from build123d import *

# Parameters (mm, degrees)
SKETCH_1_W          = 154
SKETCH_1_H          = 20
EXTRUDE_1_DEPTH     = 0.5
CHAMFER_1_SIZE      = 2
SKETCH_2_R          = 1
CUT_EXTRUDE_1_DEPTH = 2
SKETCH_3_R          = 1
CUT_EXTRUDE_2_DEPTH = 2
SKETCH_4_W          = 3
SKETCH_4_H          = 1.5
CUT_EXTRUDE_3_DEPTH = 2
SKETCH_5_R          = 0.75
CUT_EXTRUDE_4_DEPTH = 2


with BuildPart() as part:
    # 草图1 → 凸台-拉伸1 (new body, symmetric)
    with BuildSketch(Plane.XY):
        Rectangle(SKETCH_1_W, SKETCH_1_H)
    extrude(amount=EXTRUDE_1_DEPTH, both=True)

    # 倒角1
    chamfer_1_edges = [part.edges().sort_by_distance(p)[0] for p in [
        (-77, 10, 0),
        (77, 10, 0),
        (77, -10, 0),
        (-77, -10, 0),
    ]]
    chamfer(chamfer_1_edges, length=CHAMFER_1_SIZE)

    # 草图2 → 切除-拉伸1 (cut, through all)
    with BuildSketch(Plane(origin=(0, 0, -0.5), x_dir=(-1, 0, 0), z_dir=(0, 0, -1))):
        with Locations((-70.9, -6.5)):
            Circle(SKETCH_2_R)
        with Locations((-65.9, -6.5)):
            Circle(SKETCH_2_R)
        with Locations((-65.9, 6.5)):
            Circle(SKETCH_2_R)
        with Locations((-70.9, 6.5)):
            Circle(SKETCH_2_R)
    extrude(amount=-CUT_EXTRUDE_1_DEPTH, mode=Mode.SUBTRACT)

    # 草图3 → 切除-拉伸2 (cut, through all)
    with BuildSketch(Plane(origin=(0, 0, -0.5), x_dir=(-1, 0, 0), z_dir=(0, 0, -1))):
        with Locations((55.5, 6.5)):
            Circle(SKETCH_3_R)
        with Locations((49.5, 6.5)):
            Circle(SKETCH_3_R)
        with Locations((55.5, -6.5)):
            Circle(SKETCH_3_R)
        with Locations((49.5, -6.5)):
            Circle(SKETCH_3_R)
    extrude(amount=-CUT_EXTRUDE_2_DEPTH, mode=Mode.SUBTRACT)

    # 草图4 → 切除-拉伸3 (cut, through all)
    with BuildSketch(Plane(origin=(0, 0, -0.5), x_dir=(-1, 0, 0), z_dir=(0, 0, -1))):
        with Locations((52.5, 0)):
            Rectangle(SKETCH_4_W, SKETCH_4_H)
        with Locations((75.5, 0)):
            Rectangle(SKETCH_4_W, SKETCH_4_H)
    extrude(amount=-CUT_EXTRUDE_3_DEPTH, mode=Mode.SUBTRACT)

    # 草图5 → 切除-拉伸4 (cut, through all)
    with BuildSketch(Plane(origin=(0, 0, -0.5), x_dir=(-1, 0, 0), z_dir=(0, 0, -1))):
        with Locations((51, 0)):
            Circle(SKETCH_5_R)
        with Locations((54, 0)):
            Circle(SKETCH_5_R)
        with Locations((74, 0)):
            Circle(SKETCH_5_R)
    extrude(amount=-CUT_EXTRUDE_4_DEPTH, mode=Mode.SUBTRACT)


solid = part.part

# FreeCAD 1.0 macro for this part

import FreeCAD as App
import Part
import Sketcher


def edges_at(feature, points):
    """Names of the edges that pass closest to the given points."""
    edges = feature.Shape.Edges
    near = lambda p: min(range(len(edges)), key=lambda i: edges[i].distToShape(Part.Vertex(*p))[0])
    return sorted({f"Edge{near(p) + 1}" for p in points})


def add_polygon(sketch, points):
    """Adds a closed chain of lines whose ends are joined by coincident constraints."""
    first, n = sketch.GeometryCount, len(points)
    for a, b in zip(points, points[1:] + points[:1]):
        sketch.addGeometry(Part.LineSegment(App.Vector(*a, 0), App.Vector(*b, 0)), False)
    for i in range(n):
        sketch.addConstraint(Sketcher.Constraint("Coincident", first + i, 2, first + (i + 1) % n, 1))

doc = App.newDocument("Part")
body = doc.addObject("PartDesign::Body", "Body")

# Sketch on XY plane
sketch1 = doc.addObject("Sketcher::SketchObject", "Sketch")
body.addObject(sketch1)
sketch1.AttachmentSupport = (doc.XY_Plane, [""])
sketch1.MapMode = "FlatFace"
add_polygon(sketch1, [(-77, 10), (-77, -10), (77, -10), (77, 10)])  # lines 0-3
sketch1.addConstraint(Sketcher.Constraint("Vertical", 0))
sketch1.addConstraint(Sketcher.Constraint("Horizontal", 1))
sketch1.addConstraint(Sketcher.Constraint("Vertical", 2))
sketch1.addConstraint(Sketcher.Constraint("Horizontal", 3))
sketch1.addConstraint(Sketcher.Constraint("Symmetric", 0, 2, 2, 2, -1, 1))
sketch1.addConstraint(Sketcher.Constraint("DistanceX", 1, 1, 1, 2, 154.0))
sketch1.addConstraint(Sketcher.Constraint("DistanceY", 0, 2, 0, 1, 20.0))
pad1 = doc.addObject("PartDesign::Pad", "Pad")
body.addObject(pad1)
pad1.Profile = sketch1
pad1.Length = 1
pad1.Midplane = True
doc.recompute()

chamfer = doc.addObject("PartDesign::Chamfer", "Chamfer")
body.addObject(chamfer)
chamfer.Base = (pad1, edges_at(pad1, [
    (-77, 10, 0),
    (77, 10, 0),
    (77, -10, 0),
    (-77, -10, 0),
]))
chamfer.Size = 2

# Sketch on XY plane
sketch2 = doc.addObject("Sketcher::SketchObject", "Sketch001")
body.addObject(sketch2)
sketch2.AttachmentSupport = (doc.XY_Plane, [""])
sketch2.MapMode = "FlatFace"
sketch2.AttachmentOffset = App.Placement(App.Vector(0, 0, -0.5), App.Rotation())
sketch2.addGeometry(Part.Circle(App.Vector(70.9, -6.5, 0), App.Vector(0, 0, 1), 1), False)
sketch2.addGeometry(Part.Circle(App.Vector(65.9, -6.5, 0), App.Vector(0, 0, 1), 1), False)
sketch2.addGeometry(Part.Circle(App.Vector(65.9, 6.5, 0), App.Vector(0, 0, 1), 1), False)
sketch2.addGeometry(Part.Circle(App.Vector(70.9, 6.5, 0), App.Vector(0, 0, 1), 1), False)
sketch2.addConstraint(Sketcher.Constraint("Equal", 0, 1))
sketch2.addConstraint(Sketcher.Constraint("Equal", 1, 2))
sketch2.addConstraint(Sketcher.Constraint("Equal", 2, 3))
sketch2.addConstraint(Sketcher.Constraint("Symmetric", 1, 3, 2, 3, -1))
sketch2.addConstraint(Sketcher.Constraint("Symmetric", 0, 3, 3, 3, -1))
sketch2.addConstraint(Sketcher.Constraint("Horizontal", 0, 3, 1, 3))
sketch2.addConstraint(Sketcher.Constraint("Diameter", 0, 2.0))
sketch2.addConstraint(Sketcher.Constraint("DistanceX", 1, 3, 0, 3, 5.0))
sketch2.addConstraint(Sketcher.Constraint("DistanceY", 1, 3, 2, 3, 13.0))
sketch2.addConstraint(Sketcher.Constraint("DistanceX", -1, 1, 0, 3, 70.9))
pocket1 = doc.addObject("PartDesign::Pocket", "Pocket")
body.addObject(pocket1)
pocket1.Profile = sketch2
pocket1.Type = "ThroughAll"
pocket1.Reversed = True

# Sketch on XY plane
sketch3 = doc.addObject("Sketcher::SketchObject", "Sketch002")
body.addObject(sketch3)
sketch3.AttachmentSupport = (doc.XY_Plane, [""])
sketch3.MapMode = "FlatFace"
sketch3.AttachmentOffset = App.Placement(App.Vector(0, 0, -0.5), App.Rotation())
sketch3.addGeometry(Part.Circle(App.Vector(-55.5, 6.5, 0), App.Vector(0, 0, 1), 1), False)
sketch3.addGeometry(Part.Circle(App.Vector(-49.5, 6.5, 0), App.Vector(0, 0, 1), 1), False)
sketch3.addGeometry(Part.Circle(App.Vector(-55.5, -6.5, 0), App.Vector(0, 0, 1), 1), False)
sketch3.addGeometry(Part.Circle(App.Vector(-49.5, -6.5, 0), App.Vector(0, 0, 1), 1), False)
sketch3.addConstraint(Sketcher.Constraint("Equal", 0, 1))
sketch3.addConstraint(Sketcher.Constraint("Equal", 1, 2))
sketch3.addConstraint(Sketcher.Constraint("Equal", 2, 3))
sketch3.addConstraint(Sketcher.Constraint("Symmetric", 0, 3, 2, 3, -1))
sketch3.addConstraint(Sketcher.Constraint("Symmetric", 1, 3, 3, 3, -1))
sketch3.addConstraint(Sketcher.Constraint("Horizontal", 0, 3, 1, 3))
sketch3.addConstraint(Sketcher.Constraint("Diameter", 0, 2.0))
sketch3.addConstraint(Sketcher.Constraint("DistanceX", 0, 3, 1, 3, 6.0))
sketch3.addConstraint(Sketcher.Constraint("DistanceY", 2, 3, 0, 3, 13.0))
sketch3.addConstraint(Sketcher.Constraint("DistanceX", 0, 3, -1, 1, 55.5))
pocket2 = doc.addObject("PartDesign::Pocket", "Pocket001")
body.addObject(pocket2)
pocket2.Profile = sketch3
pocket2.Type = "ThroughAll"
pocket2.Reversed = True

# Sketch on XY plane
sketch4 = doc.addObject("Sketcher::SketchObject", "Sketch003")
body.addObject(sketch4)
sketch4.AttachmentSupport = (doc.XY_Plane, [""])
sketch4.MapMode = "FlatFace"
sketch4.AttachmentOffset = App.Placement(App.Vector(0, 0, -0.5), App.Rotation())
add_polygon(sketch4, [(-51, 0.8), (-51, -0.8), (-54, -0.8), (-54, 0.8)])  # lines 0-3
add_polygon(sketch4, [(-74, 0.8), (-74, -0.8), (-77, -0.8), (-77, 0.8)])  # lines 4-7
sketch4.addConstraint(Sketcher.Constraint("Vertical", 0))
sketch4.addConstraint(Sketcher.Constraint("Horizontal", 1))
sketch4.addConstraint(Sketcher.Constraint("Vertical", 2))
sketch4.addConstraint(Sketcher.Constraint("Horizontal", 3))
sketch4.addConstraint(Sketcher.Constraint("Vertical", 4))
sketch4.addConstraint(Sketcher.Constraint("Horizontal", 5))
sketch4.addConstraint(Sketcher.Constraint("Vertical", 6))
sketch4.addConstraint(Sketcher.Constraint("Horizontal", 7))
sketch4.addConstraint(Sketcher.Constraint("Horizontal", 1, 2, 4, 2))
sketch4.addConstraint(Sketcher.Constraint("Horizontal", 3, 2, 6, 2))
sketch4.addConstraint(Sketcher.Constraint("Equal", 3, 5))
sketch4.addConstraint(Sketcher.Constraint("DistanceX", 1, 2, 1, 1, 3.0))
sketch4.addConstraint(Sketcher.Constraint("DistanceY", 0, 2, 0, 1, 1.5))
sketch4.addConstraint(Sketcher.Constraint("DistanceX", 0, 2, -1, 1, 51.0))
sketch4.addConstraint(Sketcher.Constraint("DistanceX", 4, 2, -1, 1, 74.0))
sketch4.addConstraint(Sketcher.Constraint("DistanceY", 0, 2, -1, 1, 0.75))
pocket3 = doc.addObject("PartDesign::Pocket", "Pocket002")
body.addObject(pocket3)
pocket3.Profile = sketch4
pocket3.Type = "ThroughAll"
pocket3.Reversed = True

# Sketch on XY plane
sketch5 = doc.addObject("Sketcher::SketchObject", "Sketch004")
body.addObject(sketch5)
sketch5.AttachmentSupport = (doc.XY_Plane, [""])
sketch5.MapMode = "FlatFace"
sketch5.AttachmentOffset = App.Placement(App.Vector(0, 0, -0.5), App.Rotation())
sketch5.addGeometry(Part.Circle(App.Vector(-51, 0, 0), App.Vector(0, 0, 1), 0.8), False)
sketch5.addGeometry(Part.Circle(App.Vector(-54, 0, 0), App.Vector(0, 0, 1), 0.8), False)
sketch5.addGeometry(Part.Circle(App.Vector(-74, 0, 0), App.Vector(0, 0, 1), 0.8), False)
sketch5.addConstraint(Sketcher.Constraint("Equal", 0, 1))
sketch5.addConstraint(Sketcher.Constraint("Equal", 1, 2))
sketch5.addConstraint(Sketcher.Constraint("PointOnObject", 0, 3, -1))
sketch5.addConstraint(Sketcher.Constraint("PointOnObject", 1, 3, -1))
sketch5.addConstraint(Sketcher.Constraint("PointOnObject", 2, 3, -1))
sketch5.addConstraint(Sketcher.Constraint("Diameter", 0, 1.5))
sketch5.addConstraint(Sketcher.Constraint("DistanceX", 0, 3, -1, 1, 51.0))
sketch5.addConstraint(Sketcher.Constraint("DistanceX", 1, 3, -1, 1, 54.0))
sketch5.addConstraint(Sketcher.Constraint("DistanceX", 2, 3, -1, 1, 74.0))
pocket4 = doc.addObject("PartDesign::Pocket", "Pocket003")
body.addObject(pocket4)
pocket4.Profile = sketch5
pocket4.Type = "ThroughAll"
pocket4.Reversed = True

doc.recompute()
